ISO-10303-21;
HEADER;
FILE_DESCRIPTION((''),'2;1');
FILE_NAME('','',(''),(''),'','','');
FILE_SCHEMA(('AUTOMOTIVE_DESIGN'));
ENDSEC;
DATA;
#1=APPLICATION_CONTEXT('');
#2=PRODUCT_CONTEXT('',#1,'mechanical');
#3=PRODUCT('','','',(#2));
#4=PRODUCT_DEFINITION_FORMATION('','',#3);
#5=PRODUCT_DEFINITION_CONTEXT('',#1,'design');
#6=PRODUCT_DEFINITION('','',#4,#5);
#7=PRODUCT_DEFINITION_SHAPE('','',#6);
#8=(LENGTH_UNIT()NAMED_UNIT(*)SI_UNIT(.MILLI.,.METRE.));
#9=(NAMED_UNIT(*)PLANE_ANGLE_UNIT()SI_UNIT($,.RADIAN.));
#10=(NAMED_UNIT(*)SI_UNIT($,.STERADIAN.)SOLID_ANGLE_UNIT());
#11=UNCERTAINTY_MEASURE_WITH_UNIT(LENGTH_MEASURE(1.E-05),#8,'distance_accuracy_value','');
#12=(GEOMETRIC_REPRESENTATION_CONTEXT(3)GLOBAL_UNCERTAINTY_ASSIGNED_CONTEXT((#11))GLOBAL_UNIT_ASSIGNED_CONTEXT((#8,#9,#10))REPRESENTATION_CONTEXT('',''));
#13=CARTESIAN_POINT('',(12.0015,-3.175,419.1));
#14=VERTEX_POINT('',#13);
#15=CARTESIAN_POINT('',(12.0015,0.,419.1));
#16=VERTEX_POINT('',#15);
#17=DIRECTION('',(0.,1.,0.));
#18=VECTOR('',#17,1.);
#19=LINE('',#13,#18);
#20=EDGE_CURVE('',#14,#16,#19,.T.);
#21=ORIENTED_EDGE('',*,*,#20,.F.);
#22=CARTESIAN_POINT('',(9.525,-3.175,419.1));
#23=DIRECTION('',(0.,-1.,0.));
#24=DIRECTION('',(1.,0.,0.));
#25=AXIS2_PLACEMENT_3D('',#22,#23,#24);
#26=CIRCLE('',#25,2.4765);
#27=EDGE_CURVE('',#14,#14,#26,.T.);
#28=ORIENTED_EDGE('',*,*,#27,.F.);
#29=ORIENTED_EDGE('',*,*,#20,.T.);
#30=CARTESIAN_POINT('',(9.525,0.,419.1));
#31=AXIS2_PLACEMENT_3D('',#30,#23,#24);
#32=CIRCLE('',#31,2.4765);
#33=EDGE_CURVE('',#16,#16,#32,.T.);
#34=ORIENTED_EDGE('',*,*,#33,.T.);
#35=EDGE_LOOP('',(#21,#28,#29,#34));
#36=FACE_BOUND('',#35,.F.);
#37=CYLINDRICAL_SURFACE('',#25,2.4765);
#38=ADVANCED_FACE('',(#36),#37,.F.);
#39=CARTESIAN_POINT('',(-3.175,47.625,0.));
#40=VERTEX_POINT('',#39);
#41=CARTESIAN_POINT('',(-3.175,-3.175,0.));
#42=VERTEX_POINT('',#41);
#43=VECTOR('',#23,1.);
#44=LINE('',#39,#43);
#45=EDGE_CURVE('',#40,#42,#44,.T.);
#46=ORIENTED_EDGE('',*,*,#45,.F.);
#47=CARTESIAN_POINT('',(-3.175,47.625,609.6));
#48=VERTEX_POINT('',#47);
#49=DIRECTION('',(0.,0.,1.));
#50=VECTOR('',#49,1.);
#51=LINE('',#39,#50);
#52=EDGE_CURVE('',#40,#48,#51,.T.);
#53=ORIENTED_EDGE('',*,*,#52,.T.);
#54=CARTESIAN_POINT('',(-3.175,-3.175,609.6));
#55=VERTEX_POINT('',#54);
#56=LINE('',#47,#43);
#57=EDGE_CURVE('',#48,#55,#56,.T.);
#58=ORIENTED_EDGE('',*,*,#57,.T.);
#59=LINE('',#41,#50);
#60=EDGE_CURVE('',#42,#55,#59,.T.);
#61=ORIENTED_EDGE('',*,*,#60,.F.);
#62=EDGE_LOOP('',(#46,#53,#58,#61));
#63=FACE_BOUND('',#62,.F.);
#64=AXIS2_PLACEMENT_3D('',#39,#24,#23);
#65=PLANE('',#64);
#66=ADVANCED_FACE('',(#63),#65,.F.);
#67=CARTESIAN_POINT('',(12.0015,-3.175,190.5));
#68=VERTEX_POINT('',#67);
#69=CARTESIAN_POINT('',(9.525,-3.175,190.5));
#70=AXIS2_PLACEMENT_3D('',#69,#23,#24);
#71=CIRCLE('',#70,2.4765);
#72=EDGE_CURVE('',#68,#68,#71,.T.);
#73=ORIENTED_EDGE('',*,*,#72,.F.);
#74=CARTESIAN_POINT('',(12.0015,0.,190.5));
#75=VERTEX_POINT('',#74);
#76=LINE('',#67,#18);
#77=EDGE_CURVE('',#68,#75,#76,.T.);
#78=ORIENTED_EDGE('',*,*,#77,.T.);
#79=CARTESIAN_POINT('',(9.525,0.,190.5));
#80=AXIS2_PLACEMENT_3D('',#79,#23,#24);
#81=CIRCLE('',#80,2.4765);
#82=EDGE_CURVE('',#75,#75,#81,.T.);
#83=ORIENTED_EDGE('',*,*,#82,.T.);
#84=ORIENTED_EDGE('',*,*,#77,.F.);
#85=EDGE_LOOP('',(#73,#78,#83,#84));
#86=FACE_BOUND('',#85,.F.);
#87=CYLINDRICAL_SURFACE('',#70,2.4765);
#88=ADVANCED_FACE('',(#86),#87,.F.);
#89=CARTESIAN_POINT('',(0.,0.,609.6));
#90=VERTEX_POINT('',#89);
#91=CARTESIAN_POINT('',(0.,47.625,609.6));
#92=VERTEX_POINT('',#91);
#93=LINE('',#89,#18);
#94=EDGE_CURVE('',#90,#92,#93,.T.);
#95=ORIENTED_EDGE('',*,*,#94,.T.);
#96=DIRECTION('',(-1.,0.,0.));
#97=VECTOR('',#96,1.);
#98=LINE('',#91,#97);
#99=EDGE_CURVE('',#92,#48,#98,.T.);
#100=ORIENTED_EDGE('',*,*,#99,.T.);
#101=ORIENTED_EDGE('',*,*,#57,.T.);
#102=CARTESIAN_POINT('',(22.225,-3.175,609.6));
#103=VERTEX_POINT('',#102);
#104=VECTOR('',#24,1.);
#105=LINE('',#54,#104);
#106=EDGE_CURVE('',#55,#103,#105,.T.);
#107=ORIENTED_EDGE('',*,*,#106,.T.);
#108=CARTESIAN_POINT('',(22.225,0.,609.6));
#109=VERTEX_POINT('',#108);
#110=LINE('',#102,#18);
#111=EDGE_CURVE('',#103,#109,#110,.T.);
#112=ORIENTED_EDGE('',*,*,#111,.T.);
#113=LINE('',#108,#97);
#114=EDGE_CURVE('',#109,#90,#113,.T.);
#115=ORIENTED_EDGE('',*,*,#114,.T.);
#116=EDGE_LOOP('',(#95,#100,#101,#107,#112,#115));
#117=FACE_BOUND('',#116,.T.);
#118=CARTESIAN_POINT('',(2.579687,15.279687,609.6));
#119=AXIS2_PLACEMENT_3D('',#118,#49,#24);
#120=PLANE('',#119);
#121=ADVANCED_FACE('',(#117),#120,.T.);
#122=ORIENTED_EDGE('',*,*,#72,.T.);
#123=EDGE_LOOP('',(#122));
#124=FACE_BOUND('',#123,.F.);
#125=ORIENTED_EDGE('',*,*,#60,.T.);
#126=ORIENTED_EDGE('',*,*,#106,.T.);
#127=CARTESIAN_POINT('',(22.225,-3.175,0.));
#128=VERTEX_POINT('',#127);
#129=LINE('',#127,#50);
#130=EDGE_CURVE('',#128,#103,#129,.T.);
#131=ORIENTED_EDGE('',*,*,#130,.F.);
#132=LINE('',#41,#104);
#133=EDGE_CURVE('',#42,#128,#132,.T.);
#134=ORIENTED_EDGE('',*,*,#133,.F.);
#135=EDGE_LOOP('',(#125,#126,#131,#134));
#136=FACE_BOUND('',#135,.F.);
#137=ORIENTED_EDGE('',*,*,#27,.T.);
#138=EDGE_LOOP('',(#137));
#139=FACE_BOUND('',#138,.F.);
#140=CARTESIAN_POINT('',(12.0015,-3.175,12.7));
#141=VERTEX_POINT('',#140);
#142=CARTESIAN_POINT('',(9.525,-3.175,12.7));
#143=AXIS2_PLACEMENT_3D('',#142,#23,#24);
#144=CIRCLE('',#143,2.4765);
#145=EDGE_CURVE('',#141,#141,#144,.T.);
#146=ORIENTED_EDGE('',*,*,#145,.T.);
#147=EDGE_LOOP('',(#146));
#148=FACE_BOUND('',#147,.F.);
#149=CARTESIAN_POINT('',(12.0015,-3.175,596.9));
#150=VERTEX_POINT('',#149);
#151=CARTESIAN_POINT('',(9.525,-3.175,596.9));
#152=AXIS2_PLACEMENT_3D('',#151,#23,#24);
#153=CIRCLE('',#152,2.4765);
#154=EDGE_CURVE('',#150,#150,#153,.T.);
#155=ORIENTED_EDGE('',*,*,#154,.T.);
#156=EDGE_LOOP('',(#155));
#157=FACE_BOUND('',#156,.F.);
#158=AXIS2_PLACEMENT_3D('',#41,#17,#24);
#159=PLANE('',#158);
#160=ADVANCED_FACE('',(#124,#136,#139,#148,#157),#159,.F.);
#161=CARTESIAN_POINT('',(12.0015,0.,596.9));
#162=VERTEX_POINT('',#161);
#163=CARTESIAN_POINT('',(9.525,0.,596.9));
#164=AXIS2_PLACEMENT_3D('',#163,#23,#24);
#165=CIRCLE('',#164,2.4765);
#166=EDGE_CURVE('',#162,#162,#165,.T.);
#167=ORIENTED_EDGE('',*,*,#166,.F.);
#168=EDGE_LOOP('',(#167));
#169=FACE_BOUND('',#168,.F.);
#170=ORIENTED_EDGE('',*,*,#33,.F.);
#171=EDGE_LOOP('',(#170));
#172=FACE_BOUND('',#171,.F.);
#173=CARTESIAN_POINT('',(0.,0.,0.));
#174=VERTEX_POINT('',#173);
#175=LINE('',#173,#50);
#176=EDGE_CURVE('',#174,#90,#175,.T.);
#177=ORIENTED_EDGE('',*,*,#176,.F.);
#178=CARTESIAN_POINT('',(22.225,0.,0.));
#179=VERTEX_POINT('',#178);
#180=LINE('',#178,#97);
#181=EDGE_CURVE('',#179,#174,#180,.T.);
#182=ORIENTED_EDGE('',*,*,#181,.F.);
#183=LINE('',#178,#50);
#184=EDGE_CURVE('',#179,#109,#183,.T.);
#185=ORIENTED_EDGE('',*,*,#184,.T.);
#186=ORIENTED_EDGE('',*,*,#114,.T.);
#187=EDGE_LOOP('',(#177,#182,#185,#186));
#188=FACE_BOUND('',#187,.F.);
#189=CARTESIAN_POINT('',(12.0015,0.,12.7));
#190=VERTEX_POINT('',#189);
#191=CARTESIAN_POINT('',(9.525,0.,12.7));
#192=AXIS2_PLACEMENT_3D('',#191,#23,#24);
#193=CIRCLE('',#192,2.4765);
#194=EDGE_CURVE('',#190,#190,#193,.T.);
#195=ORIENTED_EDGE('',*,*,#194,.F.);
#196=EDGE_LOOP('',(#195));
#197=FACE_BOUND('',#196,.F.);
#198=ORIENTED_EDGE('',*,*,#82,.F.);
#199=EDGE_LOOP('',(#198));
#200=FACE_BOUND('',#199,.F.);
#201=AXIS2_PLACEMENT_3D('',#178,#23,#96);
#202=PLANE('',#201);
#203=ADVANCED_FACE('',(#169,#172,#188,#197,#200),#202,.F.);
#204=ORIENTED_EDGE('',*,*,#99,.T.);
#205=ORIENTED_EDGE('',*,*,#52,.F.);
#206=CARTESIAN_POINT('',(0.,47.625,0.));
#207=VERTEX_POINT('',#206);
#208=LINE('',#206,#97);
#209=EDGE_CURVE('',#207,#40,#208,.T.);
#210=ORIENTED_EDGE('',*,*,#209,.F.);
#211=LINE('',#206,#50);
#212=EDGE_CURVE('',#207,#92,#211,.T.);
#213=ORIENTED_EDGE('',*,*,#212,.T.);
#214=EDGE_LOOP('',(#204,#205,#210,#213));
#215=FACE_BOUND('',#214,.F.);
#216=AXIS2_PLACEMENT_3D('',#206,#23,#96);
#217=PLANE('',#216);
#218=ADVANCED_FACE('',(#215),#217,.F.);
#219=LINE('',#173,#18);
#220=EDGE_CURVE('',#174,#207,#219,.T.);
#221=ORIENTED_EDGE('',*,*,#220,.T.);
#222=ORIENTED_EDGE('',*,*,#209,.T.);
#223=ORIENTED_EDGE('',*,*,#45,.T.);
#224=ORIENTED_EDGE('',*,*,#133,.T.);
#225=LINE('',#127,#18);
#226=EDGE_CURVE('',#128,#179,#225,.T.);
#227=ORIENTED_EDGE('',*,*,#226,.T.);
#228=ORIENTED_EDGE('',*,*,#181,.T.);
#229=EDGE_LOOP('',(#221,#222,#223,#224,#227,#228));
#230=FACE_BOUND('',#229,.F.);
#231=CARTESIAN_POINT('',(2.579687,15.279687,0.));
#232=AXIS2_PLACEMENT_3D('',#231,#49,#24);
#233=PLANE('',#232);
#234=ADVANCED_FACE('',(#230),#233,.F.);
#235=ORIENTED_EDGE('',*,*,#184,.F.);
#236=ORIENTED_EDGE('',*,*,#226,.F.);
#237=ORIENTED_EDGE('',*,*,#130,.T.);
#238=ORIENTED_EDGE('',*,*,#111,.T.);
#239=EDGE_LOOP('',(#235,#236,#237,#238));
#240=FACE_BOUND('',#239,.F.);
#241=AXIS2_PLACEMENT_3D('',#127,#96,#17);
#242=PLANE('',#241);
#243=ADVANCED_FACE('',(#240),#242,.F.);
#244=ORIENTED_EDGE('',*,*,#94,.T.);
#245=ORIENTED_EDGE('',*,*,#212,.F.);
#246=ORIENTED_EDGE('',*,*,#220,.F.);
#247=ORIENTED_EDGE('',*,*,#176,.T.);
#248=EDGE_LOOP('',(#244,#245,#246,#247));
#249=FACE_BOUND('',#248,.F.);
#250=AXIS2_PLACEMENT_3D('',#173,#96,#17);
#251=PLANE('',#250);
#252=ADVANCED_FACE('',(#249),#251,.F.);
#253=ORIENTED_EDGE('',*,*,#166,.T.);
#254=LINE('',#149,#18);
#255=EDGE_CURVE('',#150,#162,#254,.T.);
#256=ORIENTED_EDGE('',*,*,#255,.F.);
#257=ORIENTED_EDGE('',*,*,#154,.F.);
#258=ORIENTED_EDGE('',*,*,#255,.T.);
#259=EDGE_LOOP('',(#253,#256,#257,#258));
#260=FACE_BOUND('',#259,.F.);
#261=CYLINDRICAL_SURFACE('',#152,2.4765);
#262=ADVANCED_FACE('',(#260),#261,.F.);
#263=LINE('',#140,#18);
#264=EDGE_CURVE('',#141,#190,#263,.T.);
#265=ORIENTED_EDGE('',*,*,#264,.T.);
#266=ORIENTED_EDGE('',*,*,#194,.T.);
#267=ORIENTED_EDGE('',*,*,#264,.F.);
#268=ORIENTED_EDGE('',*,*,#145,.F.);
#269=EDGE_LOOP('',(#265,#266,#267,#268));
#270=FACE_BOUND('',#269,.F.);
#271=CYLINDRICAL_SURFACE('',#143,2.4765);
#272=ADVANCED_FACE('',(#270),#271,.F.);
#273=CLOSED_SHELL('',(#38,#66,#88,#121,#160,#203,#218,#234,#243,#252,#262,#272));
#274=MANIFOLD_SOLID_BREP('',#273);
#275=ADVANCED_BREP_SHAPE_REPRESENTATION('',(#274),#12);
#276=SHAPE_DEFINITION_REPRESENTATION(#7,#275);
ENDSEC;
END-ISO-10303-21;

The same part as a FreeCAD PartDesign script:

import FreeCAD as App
import Part
import Sketcher
Q = App.Units.Quantity

doc = App.newDocument("Part")
params = doc.addObject("Spreadsheet::Sheet", "Params")
for row, (alias, value) in enumerate([
    ("sketch1_width", "1 in"),
    ("sketch1_height", "2 in"),
    ("sketch1_width2", "0.125 in"),
    ("pad1_length", "24 in"),
    ("sketch2_diameter", "0.195 in"),
], start=1):
    params.set(f"A{row}", alias)
    params.set(f"B{row}", "=" + value)
    params.setAlias(f"B{row}", alias)

body = doc.addObject("PartDesign::Body", "Body")

sketch1 = body.newObject("Sketcher::SketchObject", "Sketch")
sketch1.AttachmentSupport = (doc.getObject("XY_Plane"), [""])
sketch1.MapMode = "FlatFace"
sketch1.addGeometry([
    Part.LineSegment(App.Vector(0, 0, 0), App.Vector(0, 47.625, 0)),
    Part.LineSegment(App.Vector(0, 47.625, 0), App.Vector(-3.175, 47.625, 0)),
    Part.LineSegment(App.Vector(-3.175, 47.625, 0), App.Vector(-3.175, -3.175, 0)),
    Part.LineSegment(App.Vector(-3.175, -3.175, 0), App.Vector(22.225, -3.175, 0)),
    Part.LineSegment(App.Vector(22.225, -3.175, 0), App.Vector(22.225, 0, 0)),
    Part.LineSegment(App.Vector(22.225, 0, 0), App.Vector(0, 0, 0)),
], False)
sketch1.addConstraint([
    Sketcher.Constraint("Coincident", 0, 2, 1, 1),
    Sketcher.Constraint("Coincident", 1, 2, 2, 1),
    Sketcher.Constraint("Coincident", 2, 2, 3, 1),
    Sketcher.Constraint("Coincident", 3, 2, 4, 1),
    Sketcher.Constraint("Coincident", 4, 2, 5, 1),
    Sketcher.Constraint("Coincident", 5, 2, 0, 1),
    Sketcher.Constraint("Vertical", 0),
    Sketcher.Constraint("Horizontal", 1),
    Sketcher.Constraint("Vertical", 2),
    Sketcher.Constraint("Horizontal", 3),
    Sketcher.Constraint("Vertical", 4),
    Sketcher.Constraint("Horizontal", 5),
    Sketcher.Constraint("Coincident", 5, 2, -1, 1),
    Sketcher.Constraint("Equal", 1, 4),
    Sketcher.Constraint("DistanceX", 3, 1, 3, 2, Q("1 in")),
    Sketcher.Constraint("DistanceY", 2, 2, 2, 1, Q("2 in")),
    Sketcher.Constraint("DistanceX", 1, 2, 1, 1, Q("0.125 in")),
])
sketch1.setExpression("Constraints[14]", "Params.sketch1_width")
sketch1.setExpression("Constraints[15]", "Params.sketch1_height")
sketch1.setExpression("Constraints[16]", "Params.sketch1_width2")
pad1 = body.newObject("PartDesign::Pad", "Pad")
pad1.Profile = sketch1
pad1.setExpression("Length", "Params.pad1_length")

sketch2 = body.newObject("Sketcher::SketchObject", "Sketch001")
sketch2.AttachmentSupport = (doc.getObject("XZ_Plane"), [""])
sketch2.MapMode = "FlatFace"
sketch2.AttachmentOffset = App.Placement(App.Vector(0, 0, 0.125 * 25.4), App.Rotation())
sketch2.addGeometry([
    Part.Circle(App.Vector(9.525, 12.7, 0), App.Vector(0, 0, 1), 2.4765),
    Part.Circle(App.Vector(9.525, 190.5, 0), App.Vector(0, 0, 1), 2.4765),
    Part.Circle(App.Vector(9.525, 419.1, 0), App.Vector(0, 0, 1), 2.4765),
    Part.Circle(App.Vector(9.525, 596.9, 0), App.Vector(0, 0, 1), 2.4765),
], False)
sketch2.addConstraint([
    Sketcher.Constraint("Equal", 0, 1),
    Sketcher.Constraint("Equal", 1, 2),
    Sketcher.Constraint("Equal", 2, 3),
    Sketcher.Constraint("Vertical", 0, 3, 1, 3),
    Sketcher.Constraint("Vertical", 1, 3, 2, 3),
    Sketcher.Constraint("Vertical", 2, 3, 3, 3),
    Sketcher.Constraint("Diameter", 0, Q("0.195 in")),
    Sketcher.Constraint("DistanceY", 0, 3, 1, 3, Q("7 in")),
    Sketcher.Constraint("DistanceY", 1, 3, 2, 3, Q("9 in")),
    Sketcher.Constraint("DistanceY", 2, 3, 3, 3, Q("7 in")),
    Sketcher.Constraint("DistanceY", -1, 1, 0, 3, Q("0.5 in")),
    Sketcher.Constraint("DistanceX", -1, 1, 0, 3, Q("0.375 in")),
])
sketch2.setExpression("Constraints[6]", "Params.sketch2_diameter")
pocket1 = body.newObject("PartDesign::Pocket", "Pocket")
pocket1.Profile = sketch2
pocket1.Type = "ThroughAll"

doc.recompute()
